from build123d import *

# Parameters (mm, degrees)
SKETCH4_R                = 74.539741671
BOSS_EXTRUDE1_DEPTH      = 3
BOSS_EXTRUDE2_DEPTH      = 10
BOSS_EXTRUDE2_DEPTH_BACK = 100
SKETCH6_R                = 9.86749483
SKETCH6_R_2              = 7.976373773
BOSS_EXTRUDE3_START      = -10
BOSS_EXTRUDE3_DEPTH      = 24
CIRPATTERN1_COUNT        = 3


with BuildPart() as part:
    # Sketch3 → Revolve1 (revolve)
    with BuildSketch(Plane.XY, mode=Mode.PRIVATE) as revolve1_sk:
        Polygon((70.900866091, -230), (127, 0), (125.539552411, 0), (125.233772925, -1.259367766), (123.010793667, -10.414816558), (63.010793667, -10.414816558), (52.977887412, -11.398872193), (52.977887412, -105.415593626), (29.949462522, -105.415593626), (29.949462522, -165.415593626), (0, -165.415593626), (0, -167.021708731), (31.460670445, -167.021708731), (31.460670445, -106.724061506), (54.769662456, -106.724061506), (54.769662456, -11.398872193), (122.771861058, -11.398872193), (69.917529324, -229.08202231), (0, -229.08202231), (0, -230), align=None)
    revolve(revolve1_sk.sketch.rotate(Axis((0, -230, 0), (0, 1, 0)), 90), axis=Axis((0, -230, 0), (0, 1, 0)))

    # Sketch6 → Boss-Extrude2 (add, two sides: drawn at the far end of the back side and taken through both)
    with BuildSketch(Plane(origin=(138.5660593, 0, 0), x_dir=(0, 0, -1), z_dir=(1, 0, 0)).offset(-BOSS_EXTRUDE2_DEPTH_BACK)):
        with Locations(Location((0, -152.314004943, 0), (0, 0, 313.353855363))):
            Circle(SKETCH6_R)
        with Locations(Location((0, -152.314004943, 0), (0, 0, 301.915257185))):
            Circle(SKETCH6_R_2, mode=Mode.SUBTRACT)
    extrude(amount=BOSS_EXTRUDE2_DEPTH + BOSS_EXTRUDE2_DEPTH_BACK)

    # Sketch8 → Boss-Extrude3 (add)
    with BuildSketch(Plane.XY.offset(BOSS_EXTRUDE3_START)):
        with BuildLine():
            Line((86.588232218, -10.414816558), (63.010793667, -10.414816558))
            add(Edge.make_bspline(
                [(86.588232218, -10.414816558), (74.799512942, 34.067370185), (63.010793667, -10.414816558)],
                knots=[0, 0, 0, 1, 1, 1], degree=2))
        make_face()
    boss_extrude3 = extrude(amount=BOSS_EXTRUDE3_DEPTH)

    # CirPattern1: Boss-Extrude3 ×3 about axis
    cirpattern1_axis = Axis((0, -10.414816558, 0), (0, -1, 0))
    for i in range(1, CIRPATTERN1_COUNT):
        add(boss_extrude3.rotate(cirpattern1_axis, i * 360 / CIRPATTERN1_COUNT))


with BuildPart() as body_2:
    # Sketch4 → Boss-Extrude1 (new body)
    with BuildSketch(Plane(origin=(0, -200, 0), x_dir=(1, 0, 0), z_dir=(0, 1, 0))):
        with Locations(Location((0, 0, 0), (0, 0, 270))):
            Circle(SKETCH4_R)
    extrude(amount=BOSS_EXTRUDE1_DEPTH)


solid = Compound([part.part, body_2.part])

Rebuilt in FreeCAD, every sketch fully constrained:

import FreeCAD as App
import Part
import Sketcher

doc = App.newDocument("Part")
body = doc.addObject("PartDesign::Body", "Body")

sketch1 = doc.addObject("Sketcher::SketchObject", "Sketch")
body.addObject(sketch1)
sketch1.AttachmentSupport = (doc.XY_Plane, [""])
sketch1.MapMode = "FlatFace"
sketch1.addGeometry(Part.LineSegment(App.Vector(70.9, -230, 0), App.Vector(127, 0, 0)), False)
sketch1.addGeometry(Part.LineSegment(App.Vector(127, 0, 0), App.Vector(125.5, 0, 0)), False)
sketch1.addGeometry(Part.LineSegment(App.Vector(125.5, 0, 0), App.Vector(125.2, -1.3, 0)), False)
sketch1.addGeometry(Part.LineSegment(App.Vector(125.2, -1.3, 0), App.Vector(123, -10.4, 0)), False)
sketch1.addGeometry(Part.LineSegment(App.Vector(123, -10.4, 0), App.Vector(63, -10.4, 0)), False)
sketch1.addGeometry(Part.LineSegment(App.Vector(63, -10.4, 0), App.Vector(53, -11.4, 0)), False)
sketch1.addGeometry(Part.LineSegment(App.Vector(53, -11.4, 0), App.Vector(53, -105.4, 0)), False)
sketch1.addGeometry(Part.LineSegment(App.Vector(53, -105.4, 0), App.Vector(29.9, -105.4, 0)), False)
sketch1.addGeometry(Part.LineSegment(App.Vector(29.9, -105.4, 0), App.Vector(29.9, -165.4, 0)), False)
sketch1.addGeometry(Part.LineSegment(App.Vector(29.9, -165.4, 0), App.Vector(0, -165.4, 0)), False)
sketch1.addGeometry(Part.LineSegment(App.Vector(0, -165.4, 0), App.Vector(0, -167, 0)), False)
sketch1.addGeometry(Part.LineSegment(App.Vector(0, -167, 0), App.Vector(31.5, -167, 0)), False)
sketch1.addGeometry(Part.LineSegment(App.Vector(31.5, -167, 0), App.Vector(31.5, -106.7, 0)), False)
sketch1.addGeometry(Part.LineSegment(App.Vector(31.5, -106.7, 0), App.Vector(54.8, -106.7, 0)), False)
sketch1.addGeometry(Part.LineSegment(App.Vector(54.8, -106.7, 0), App.Vector(54.8, -11.4, 0)), False)
sketch1.addGeometry(Part.LineSegment(App.Vector(54.8, -11.4, 0), App.Vector(122.8, -11.4, 0)), False)
sketch1.addGeometry(Part.LineSegment(App.Vector(122.8, -11.4, 0), App.Vector(69.9, -229.1, 0)), False)
sketch1.addGeometry(Part.LineSegment(App.Vector(69.9, -229.1, 0), App.Vector(0, -229.1, 0)), False)
sketch1.addGeometry(Part.LineSegment(App.Vector(0, -229.1, 0), App.Vector(0, -230, 0)), False)
sketch1.addGeometry(Part.LineSegment(App.Vector(0, -230, 0), App.Vector(70.9, -230, 0)), False)
sketch1.addConstraint(Sketcher.Constraint("Coincident", 0, 2, 1, 1))
sketch1.addConstraint(Sketcher.Constraint("Coincident", 1, 2, 2, 1))
sketch1.addConstraint(Sketcher.Constraint("Coincident", 2, 2, 3, 1))
sketch1.addConstraint(Sketcher.Constraint("Coincident", 3, 2, 4, 1))
sketch1.addConstraint(Sketcher.Constraint("Coincident", 4, 2, 5, 1))
sketch1.addConstraint(Sketcher.Constraint("Coincident", 5, 2, 6, 1))
sketch1.addConstraint(Sketcher.Constraint("Coincident", 6, 2, 7, 1))
sketch1.addConstraint(Sketcher.Constraint("Coincident", 7, 2, 8, 1))
sketch1.addConstraint(Sketcher.Constraint("Coincident", 8, 2, 9, 1))
sketch1.addConstraint(Sketcher.Constraint("Coincident", 9, 2, 10, 1))
sketch1.addConstraint(Sketcher.Constraint("Coincident", 10, 2, 11, 1))
sketch1.addConstraint(Sketcher.Constraint("Coincident", 11, 2, 12, 1))
sketch1.addConstraint(Sketcher.Constraint("Coincident", 12, 2, 13, 1))
sketch1.addConstraint(Sketcher.Constraint("Coincident", 13, 2, 14, 1))
sketch1.addConstraint(Sketcher.Constraint("Coincident", 14, 2, 15, 1))
sketch1.addConstraint(Sketcher.Constraint("Coincident", 15, 2, 16, 1))
sketch1.addConstraint(Sketcher.Constraint("Coincident", 16, 2, 17, 1))
sketch1.addConstraint(Sketcher.Constraint("Coincident", 17, 2, 18, 1))
sketch1.addConstraint(Sketcher.Constraint("Coincident", 18, 2, 19, 1))
sketch1.addConstraint(Sketcher.Constraint("Coincident", 19, 2, 0, 1))
sketch1.addConstraint(Sketcher.Constraint("Horizontal", 1))
sketch1.addConstraint(Sketcher.Constraint("Horizontal", 4))
sketch1.addConstraint(Sketcher.Constraint("Vertical", 6))
sketch1.addConstraint(Sketcher.Constraint("Horizontal", 7))
sketch1.addConstraint(Sketcher.Constraint("Vertical", 8))
sketch1.addConstraint(Sketcher.Constraint("Horizontal", 9))
sketch1.addConstraint(Sketcher.Constraint("Vertical", 10))
sketch1.addConstraint(Sketcher.Constraint("Horizontal", 11))
sketch1.addConstraint(Sketcher.Constraint("Vertical", 12))
sketch1.addConstraint(Sketcher.Constraint("Horizontal", 13))
sketch1.addConstraint(Sketcher.Constraint("Vertical", 14))
sketch1.addConstraint(Sketcher.Constraint("Horizontal", 15))
sketch1.addConstraint(Sketcher.Constraint("Horizontal", 17))
sketch1.addConstraint(Sketcher.Constraint("Vertical", 18))
sketch1.addConstraint(Sketcher.Constraint("Horizontal", 19))
sketch1.addConstraint(Sketcher.Constraint("PointOnObject", 0, 2, -1))
sketch1.addConstraint(Sketcher.Constraint("PointOnObject", 9, 2, -2))
sketch1.addConstraint(Sketcher.Constraint("PointOnObject", 17, 2, -2))
sketch1.addConstraint(Sketcher.Constraint("Parallel", 2, 3))
sketch1.addConstraint(Sketcher.Constraint("Parallel", 3, 16))
sketch1.addConstraint(Sketcher.Constraint("Horizontal", 5, 2, 14, 2))
sketch1.addConstraint(Sketcher.Constraint("Equal", 4, 8))
sketch1.addConstraint(Sketcher.Constraint("DistanceX", 4, 2, 4, 1, 60.0))
sketch1.addConstraint(Sketcher.Constraint("DistanceX", -1, 1, 0, 2, 127.0))
sketch1.addConstraint(Sketcher.Constraint("DistanceY", 18, 2, -1, 1, 230.0))
sketch1.addConstraint(Sketcher.Constraint("DistanceX", 15, 1, 15, 2, 68.002199))
sketch1.addConstraint(Sketcher.Constraint("DistanceX", 11, 1, 11, 2, 31.46067))
sketch1.addConstraint(Sketcher.Constraint("DistanceX", 17, 2, 17, 1, 69.917529))
sketch1.addConstraint(Sketcher.Constraint("DistanceY", 6, 2, 6, 1, 94.016721))
sketch1.addConstraint(Sketcher.Constraint("DistanceY", 14, 1, 14, 2, 95.325189))
sketch1.addConstraint(Sketcher.Constraint("DistanceX", 7, 2, 13, 2, 24.8202))
sketch1.addConstraint(Sketcher.Constraint("Distance", 2, 1.295958))
sketch1.addConstraint(Sketcher.Constraint("Distance", 3, 9.421458))
sketch1.addConstraint(Sketcher.Constraint("Distance", 5, 10.08105))
sketch1.addConstraint(Sketcher.Constraint("Distance", 16, 224.007889))
sketch1.addConstraint(Sketcher.Constraint("DistanceX", 1, 2, 1, 1, 1.460448))
sketch1.addConstraint(Sketcher.Constraint("DistanceX", 7, 2, 7, 1, 23.028425))
sketch1.addConstraint(Sketcher.Constraint("DistanceX", 9, 2, 9, 1, 29.949463))
sketch1.addConstraint(Sketcher.Constraint("DistanceX", 19, 1, 19, 2, 70.900866))
sketch1.addConstraint(Sketcher.Constraint("DistanceY", 10, 2, 10, 1, 1.606115))
revolution = doc.addObject("PartDesign::Revolution", "Revolution")
body.addObject(revolution)
revolution.Profile = sketch1
revolution.ReferenceAxis = (sketch1, ["V_Axis"])
revolution.Angle = 360

sketch2 = doc.addObject("Sketcher::SketchObject", "Sketch001")
body.addObject(sketch2)
sketch2.AttachmentSupport = (doc.YZ_Plane, [""])
sketch2.MapMode = "FlatFace"
sketch2.AttachmentOffset = App.Placement(App.Vector(0, 0, 138.566059), App.Rotation())
sketch2.addGeometry(Part.Circle(App.Vector(-152, 0, 0), App.Vector(0, 0, 1), 10), False)
sketch2.addGeometry(Part.Circle(App.Vector(-152, 0, 0), App.Vector(0, 0, 1), 8), False)
sketch2.addConstraint(Sketcher.Constraint("Coincident", 1, 3, 0, 3))
sketch2.addConstraint(Sketcher.Constraint("PointOnObject", 0, 3, -1))
sketch2.addConstraint(Sketcher.Constraint("Diameter", 0, 19.73499))
sketch2.addConstraint(Sketcher.Constraint("Diameter", 1, 15.952748))
sketch2.addConstraint(Sketcher.Constraint("DistanceX", 0, 3, -1, 1, 152.314005))
pad1 = doc.addObject("PartDesign::Pad", "Pad")
body.addObject(pad1)
pad1.Profile = sketch2
pad1.Type = "TwoLengths"
pad1.Length = 10
pad1.Length2 = 100

sketch3 = doc.addObject("Sketcher::SketchObject", "Sketch002")
body.addObject(sketch3)
sketch3.AttachmentSupport = (doc.XY_Plane, [""])
sketch3.MapMode = "FlatFace"
sketch3.AttachmentOffset = App.Placement(App.Vector(0, 0, -10), App.Rotation())
sketch3.addGeometry(Part.LineSegment(App.Vector(63.010794, -10.414817, 0), App.Vector(86.588232, -10.414817, 0)), False)
sketch3.addGeometry(Part.BSplineCurve([App.Vector(86.588232, -10.414817, 0), App.Vector(74.799513, 34.06737, 0), App.Vector(63.010794, -10.414817, 0)], [3, 3], [0, 1], False, 2, [1, 1, 1], False), False)
sketch3.addConstraint(Sketcher.Constraint("Block", 1))
sketch3.addConstraint(Sketcher.Constraint("Coincident", 0, 1, 1, 2))
sketch3.addConstraint(Sketcher.Constraint("Coincident", 1, 1, 0, 2))
pad2 = doc.addObject("PartDesign::Pad", "Pad001")
body.addObject(pad2)
pad2.Profile = sketch3
pad2.Length = 24
doc.recompute()

polarpattern = doc.addObject("PartDesign::PolarPattern", "PolarPattern")
body.addObject(polarpattern)
polarpattern.Originals = [pad2]
polarpattern.Axis = (doc.Y_Axis, [""])
polarpattern.Angle = 360
polarpattern.Occurrences = 3
body.Tip = polarpattern
body2 = doc.addObject("PartDesign::Body", "Body001")

sketch4 = doc.addObject("Sketcher::SketchObject", "Sketch003")
body2.addObject(sketch4)
sketch4.AttachmentSupport = (doc.getObject("XZ_Plane001"), [""])
sketch4.MapMode = "FlatFace"
sketch4.AttachmentOffset = App.Placement(App.Vector(0, 0, 200), App.Rotation())
sketch4.addGeometry(Part.Circle(App.Vector(0, 0, 0), App.Vector(0, 0, 1), 75), False)
sketch4.addConstraint(Sketcher.Constraint("Coincident", 0, 3, -1, 1))
sketch4.addConstraint(Sketcher.Constraint("Diameter", 0, 149.079483))
pad3 = doc.addObject("PartDesign::Pad", "Pad002")
body2.addObject(pad3)
pad3.Profile = sketch4
pad3.Length = 3
pad3.Reversed = True

doc.recompute()
